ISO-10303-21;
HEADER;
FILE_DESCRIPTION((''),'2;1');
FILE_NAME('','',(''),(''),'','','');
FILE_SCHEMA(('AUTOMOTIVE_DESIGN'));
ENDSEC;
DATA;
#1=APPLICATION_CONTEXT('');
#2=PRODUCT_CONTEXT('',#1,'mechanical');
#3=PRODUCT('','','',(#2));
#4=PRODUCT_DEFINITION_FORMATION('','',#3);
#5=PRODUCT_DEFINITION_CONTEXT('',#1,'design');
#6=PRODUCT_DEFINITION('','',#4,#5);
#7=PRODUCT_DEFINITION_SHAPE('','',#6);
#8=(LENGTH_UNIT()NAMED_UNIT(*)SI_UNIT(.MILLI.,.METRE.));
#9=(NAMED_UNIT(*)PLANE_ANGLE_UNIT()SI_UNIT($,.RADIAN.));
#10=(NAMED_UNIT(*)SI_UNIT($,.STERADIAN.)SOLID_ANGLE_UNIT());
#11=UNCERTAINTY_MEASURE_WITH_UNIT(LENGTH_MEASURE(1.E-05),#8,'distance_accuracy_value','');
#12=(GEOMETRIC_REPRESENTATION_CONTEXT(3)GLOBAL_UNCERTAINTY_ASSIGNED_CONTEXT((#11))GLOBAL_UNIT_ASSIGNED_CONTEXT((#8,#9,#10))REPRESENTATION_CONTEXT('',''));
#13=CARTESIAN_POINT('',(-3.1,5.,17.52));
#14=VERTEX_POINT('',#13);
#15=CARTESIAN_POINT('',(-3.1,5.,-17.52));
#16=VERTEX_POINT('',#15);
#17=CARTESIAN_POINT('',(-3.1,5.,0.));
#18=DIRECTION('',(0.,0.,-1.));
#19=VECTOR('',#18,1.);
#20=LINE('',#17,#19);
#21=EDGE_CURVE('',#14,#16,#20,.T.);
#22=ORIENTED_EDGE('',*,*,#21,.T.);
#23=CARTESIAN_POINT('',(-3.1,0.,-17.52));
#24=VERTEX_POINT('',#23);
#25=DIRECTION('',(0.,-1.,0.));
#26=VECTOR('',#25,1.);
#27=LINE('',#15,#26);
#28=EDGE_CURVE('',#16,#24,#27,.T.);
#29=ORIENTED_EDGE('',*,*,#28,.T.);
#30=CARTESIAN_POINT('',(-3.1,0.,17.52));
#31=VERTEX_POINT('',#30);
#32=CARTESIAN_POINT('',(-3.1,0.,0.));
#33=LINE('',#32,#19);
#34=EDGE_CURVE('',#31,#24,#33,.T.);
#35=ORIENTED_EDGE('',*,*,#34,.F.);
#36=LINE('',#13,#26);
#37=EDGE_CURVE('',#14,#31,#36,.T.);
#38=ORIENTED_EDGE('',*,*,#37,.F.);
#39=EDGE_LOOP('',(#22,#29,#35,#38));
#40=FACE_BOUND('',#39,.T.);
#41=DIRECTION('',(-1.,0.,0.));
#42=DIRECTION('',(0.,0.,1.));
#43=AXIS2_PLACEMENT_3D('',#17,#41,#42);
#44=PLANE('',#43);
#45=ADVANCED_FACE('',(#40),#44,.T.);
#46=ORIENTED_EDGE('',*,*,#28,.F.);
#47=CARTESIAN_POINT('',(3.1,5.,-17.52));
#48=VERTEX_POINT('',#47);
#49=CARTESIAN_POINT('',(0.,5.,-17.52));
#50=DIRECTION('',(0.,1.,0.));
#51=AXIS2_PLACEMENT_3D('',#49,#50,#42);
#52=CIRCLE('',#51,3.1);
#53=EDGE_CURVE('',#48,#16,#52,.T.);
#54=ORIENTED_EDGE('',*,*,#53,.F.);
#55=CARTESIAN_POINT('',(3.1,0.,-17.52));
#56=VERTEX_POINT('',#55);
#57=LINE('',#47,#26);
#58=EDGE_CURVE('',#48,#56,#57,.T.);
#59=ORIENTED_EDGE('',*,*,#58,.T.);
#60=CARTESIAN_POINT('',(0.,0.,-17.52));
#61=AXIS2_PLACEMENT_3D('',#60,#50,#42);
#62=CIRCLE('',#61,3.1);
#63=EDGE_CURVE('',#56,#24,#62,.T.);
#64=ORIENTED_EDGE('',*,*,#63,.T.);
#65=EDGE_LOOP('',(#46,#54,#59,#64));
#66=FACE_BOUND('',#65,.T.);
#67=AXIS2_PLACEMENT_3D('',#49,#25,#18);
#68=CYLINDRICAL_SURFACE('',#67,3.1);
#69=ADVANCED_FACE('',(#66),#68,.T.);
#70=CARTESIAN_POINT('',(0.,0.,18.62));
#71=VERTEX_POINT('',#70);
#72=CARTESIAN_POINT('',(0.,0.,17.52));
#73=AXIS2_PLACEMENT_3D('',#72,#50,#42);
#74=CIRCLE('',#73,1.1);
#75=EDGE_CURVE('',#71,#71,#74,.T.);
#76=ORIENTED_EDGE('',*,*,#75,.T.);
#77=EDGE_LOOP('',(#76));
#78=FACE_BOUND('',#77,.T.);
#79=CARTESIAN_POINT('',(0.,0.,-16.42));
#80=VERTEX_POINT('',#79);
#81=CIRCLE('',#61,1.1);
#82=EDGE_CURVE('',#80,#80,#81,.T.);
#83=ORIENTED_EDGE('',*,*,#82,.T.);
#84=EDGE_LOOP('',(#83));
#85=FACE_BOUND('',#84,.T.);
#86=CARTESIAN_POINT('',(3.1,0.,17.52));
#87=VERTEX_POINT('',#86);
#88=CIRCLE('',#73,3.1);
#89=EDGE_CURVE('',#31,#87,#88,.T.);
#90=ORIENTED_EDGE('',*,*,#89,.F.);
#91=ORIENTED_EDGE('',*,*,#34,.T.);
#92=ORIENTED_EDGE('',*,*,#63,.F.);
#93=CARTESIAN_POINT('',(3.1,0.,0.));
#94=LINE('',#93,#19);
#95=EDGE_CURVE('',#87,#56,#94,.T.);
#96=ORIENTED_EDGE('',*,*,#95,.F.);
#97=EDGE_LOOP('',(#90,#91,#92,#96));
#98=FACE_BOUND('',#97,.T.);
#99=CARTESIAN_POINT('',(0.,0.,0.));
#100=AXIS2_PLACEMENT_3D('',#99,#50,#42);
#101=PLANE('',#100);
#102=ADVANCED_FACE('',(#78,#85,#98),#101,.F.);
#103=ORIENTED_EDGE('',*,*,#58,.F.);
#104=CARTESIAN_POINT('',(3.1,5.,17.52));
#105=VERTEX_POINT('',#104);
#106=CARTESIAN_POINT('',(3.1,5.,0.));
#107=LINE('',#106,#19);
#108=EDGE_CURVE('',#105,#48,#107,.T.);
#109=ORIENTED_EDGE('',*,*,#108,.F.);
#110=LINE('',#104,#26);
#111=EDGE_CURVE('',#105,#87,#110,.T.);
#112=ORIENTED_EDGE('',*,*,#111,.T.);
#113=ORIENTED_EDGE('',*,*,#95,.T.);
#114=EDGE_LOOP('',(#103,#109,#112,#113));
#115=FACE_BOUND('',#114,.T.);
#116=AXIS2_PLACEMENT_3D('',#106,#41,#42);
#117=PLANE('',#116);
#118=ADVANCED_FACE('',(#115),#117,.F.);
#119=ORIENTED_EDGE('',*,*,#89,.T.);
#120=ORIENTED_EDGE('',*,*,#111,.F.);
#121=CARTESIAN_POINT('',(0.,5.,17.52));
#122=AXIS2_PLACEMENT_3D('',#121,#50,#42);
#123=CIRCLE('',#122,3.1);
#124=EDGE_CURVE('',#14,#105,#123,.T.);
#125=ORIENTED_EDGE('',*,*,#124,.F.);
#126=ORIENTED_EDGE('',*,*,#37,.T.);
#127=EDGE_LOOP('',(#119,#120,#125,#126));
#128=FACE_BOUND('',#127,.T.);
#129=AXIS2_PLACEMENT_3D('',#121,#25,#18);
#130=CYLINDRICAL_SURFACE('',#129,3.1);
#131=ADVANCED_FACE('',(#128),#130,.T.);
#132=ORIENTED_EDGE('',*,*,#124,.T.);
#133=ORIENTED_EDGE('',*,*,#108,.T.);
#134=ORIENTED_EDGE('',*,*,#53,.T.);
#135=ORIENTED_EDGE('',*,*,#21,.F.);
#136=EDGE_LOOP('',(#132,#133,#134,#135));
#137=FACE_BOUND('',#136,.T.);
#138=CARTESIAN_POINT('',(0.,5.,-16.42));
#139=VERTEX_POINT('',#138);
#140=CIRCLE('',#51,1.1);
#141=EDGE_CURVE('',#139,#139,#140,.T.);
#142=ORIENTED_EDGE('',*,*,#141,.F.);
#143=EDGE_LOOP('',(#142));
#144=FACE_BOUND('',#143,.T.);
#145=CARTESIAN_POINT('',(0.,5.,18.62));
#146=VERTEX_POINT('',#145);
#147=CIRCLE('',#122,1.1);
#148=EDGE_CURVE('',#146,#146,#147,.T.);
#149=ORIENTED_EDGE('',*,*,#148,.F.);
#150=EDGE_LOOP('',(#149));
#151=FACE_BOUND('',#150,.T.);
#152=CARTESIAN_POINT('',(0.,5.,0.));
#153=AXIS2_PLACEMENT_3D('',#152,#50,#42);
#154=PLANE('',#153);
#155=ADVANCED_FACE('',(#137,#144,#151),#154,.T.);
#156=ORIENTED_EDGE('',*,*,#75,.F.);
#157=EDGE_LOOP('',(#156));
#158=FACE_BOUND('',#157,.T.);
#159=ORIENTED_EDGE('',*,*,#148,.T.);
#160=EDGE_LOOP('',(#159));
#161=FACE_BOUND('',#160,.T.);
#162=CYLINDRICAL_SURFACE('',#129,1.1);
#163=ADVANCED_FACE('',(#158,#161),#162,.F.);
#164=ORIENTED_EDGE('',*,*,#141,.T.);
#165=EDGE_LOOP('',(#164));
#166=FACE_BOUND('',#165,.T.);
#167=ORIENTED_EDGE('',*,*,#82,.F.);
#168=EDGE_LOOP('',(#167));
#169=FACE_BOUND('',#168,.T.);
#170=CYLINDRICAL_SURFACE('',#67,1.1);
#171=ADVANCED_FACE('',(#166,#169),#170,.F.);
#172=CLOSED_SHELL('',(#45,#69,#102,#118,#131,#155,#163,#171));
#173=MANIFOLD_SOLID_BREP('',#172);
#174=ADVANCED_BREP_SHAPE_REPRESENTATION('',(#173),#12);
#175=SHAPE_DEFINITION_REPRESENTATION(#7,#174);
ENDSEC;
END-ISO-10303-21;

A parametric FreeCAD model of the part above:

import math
import FreeCAD as App
import Part
import Sketcher
from FreeCAD import Vector

doc = App.newDocument("Part")
params = doc.addObject("Spreadsheet::Sheet", "Params")
for row, (alias, value) in enumerate([
    ("sketch1_diameter", "2.2 mm"),
    ("sketch1_radius", "3.1 mm"),
    ("sketch1_height", "35.04 mm"),
    ("pad1_length", "5 mm"),
], start=1):
    params.set(f"A{row}", alias)
    params.set(f"B{row}", "=" + value)
    params.setAlias(f"B{row}", alias)

body = doc.addObject("PartDesign::Body", "Body")

# Sketch on XZ plane
sketch1 = body.newObject("Sketcher::SketchObject", "Sketch")
sketch1.AttachmentSupport = (doc.getObject("XZ_Plane"), [""])
sketch1.MapMode = "FlatFace"
sketch1.addGeometry([
    Part.LineSegment(Vector(-3.1, -17.5, 0), Vector(-3.1, 17.5, 0)),  # 0
    Part.ArcOfCircle(Part.Circle(Vector(0, 17.5, 0), Vector(0, 0, 1), 3.1), math.radians(0), math.radians(180)),  # 1
    Part.LineSegment(Vector(3.1, 17.5, 0), Vector(3.1, -17.5, 0)),  # 2
    Part.ArcOfCircle(Part.Circle(Vector(0, -17.5, 0), Vector(0, 0, 1), 3.1), math.radians(180), math.radians(360)),  # 3
    Part.Circle(Vector(0, 17.5, 0), Vector(0, 0, 1), 1.1),  # 4
    Part.Circle(Vector(0, -17.5, 0), Vector(0, 0, 1), 1.1),  # 5
], False)
sketch1.addConstraint([
    Sketcher.Constraint("Tangent", 0, 2, 1, 2),
    Sketcher.Constraint("Tangent", 1, 1, 2, 1),
    Sketcher.Constraint("Tangent", 2, 2, 3, 2),
    Sketcher.Constraint("Tangent", 3, 1, 0, 1),
    Sketcher.Constraint("Vertical", 0),
    Sketcher.Constraint("Vertical", 2),
    Sketcher.Constraint("Coincident", 4, 3, 1, 3),
    Sketcher.Constraint("Coincident", 5, 3, 3, 3),
    Sketcher.Constraint("Equal", 4, 5),
    Sketcher.Constraint("Symmetric", 1, 3, 3, 3, -1, 1),
    Sketcher.Constraint("Diameter", 4, 2.2),
    Sketcher.Constraint("Radius", 1, 3.1),
    Sketcher.Constraint("DistanceY", 0, 1, 0, 2, 35.04),
])
sketch1.setExpression("Constraints[10]", "Params.sketch1_diameter")
sketch1.setExpression("Constraints[11]", "Params.sketch1_radius")
sketch1.setExpression("Constraints[12]", "Params.sketch1_height")
pad1 = body.newObject("PartDesign::Pad", "Pad")
pad1.Profile = sketch1
pad1.setExpression("Length", "Params.pad1_length")
pad1.Reversed = True

doc.recompute()
